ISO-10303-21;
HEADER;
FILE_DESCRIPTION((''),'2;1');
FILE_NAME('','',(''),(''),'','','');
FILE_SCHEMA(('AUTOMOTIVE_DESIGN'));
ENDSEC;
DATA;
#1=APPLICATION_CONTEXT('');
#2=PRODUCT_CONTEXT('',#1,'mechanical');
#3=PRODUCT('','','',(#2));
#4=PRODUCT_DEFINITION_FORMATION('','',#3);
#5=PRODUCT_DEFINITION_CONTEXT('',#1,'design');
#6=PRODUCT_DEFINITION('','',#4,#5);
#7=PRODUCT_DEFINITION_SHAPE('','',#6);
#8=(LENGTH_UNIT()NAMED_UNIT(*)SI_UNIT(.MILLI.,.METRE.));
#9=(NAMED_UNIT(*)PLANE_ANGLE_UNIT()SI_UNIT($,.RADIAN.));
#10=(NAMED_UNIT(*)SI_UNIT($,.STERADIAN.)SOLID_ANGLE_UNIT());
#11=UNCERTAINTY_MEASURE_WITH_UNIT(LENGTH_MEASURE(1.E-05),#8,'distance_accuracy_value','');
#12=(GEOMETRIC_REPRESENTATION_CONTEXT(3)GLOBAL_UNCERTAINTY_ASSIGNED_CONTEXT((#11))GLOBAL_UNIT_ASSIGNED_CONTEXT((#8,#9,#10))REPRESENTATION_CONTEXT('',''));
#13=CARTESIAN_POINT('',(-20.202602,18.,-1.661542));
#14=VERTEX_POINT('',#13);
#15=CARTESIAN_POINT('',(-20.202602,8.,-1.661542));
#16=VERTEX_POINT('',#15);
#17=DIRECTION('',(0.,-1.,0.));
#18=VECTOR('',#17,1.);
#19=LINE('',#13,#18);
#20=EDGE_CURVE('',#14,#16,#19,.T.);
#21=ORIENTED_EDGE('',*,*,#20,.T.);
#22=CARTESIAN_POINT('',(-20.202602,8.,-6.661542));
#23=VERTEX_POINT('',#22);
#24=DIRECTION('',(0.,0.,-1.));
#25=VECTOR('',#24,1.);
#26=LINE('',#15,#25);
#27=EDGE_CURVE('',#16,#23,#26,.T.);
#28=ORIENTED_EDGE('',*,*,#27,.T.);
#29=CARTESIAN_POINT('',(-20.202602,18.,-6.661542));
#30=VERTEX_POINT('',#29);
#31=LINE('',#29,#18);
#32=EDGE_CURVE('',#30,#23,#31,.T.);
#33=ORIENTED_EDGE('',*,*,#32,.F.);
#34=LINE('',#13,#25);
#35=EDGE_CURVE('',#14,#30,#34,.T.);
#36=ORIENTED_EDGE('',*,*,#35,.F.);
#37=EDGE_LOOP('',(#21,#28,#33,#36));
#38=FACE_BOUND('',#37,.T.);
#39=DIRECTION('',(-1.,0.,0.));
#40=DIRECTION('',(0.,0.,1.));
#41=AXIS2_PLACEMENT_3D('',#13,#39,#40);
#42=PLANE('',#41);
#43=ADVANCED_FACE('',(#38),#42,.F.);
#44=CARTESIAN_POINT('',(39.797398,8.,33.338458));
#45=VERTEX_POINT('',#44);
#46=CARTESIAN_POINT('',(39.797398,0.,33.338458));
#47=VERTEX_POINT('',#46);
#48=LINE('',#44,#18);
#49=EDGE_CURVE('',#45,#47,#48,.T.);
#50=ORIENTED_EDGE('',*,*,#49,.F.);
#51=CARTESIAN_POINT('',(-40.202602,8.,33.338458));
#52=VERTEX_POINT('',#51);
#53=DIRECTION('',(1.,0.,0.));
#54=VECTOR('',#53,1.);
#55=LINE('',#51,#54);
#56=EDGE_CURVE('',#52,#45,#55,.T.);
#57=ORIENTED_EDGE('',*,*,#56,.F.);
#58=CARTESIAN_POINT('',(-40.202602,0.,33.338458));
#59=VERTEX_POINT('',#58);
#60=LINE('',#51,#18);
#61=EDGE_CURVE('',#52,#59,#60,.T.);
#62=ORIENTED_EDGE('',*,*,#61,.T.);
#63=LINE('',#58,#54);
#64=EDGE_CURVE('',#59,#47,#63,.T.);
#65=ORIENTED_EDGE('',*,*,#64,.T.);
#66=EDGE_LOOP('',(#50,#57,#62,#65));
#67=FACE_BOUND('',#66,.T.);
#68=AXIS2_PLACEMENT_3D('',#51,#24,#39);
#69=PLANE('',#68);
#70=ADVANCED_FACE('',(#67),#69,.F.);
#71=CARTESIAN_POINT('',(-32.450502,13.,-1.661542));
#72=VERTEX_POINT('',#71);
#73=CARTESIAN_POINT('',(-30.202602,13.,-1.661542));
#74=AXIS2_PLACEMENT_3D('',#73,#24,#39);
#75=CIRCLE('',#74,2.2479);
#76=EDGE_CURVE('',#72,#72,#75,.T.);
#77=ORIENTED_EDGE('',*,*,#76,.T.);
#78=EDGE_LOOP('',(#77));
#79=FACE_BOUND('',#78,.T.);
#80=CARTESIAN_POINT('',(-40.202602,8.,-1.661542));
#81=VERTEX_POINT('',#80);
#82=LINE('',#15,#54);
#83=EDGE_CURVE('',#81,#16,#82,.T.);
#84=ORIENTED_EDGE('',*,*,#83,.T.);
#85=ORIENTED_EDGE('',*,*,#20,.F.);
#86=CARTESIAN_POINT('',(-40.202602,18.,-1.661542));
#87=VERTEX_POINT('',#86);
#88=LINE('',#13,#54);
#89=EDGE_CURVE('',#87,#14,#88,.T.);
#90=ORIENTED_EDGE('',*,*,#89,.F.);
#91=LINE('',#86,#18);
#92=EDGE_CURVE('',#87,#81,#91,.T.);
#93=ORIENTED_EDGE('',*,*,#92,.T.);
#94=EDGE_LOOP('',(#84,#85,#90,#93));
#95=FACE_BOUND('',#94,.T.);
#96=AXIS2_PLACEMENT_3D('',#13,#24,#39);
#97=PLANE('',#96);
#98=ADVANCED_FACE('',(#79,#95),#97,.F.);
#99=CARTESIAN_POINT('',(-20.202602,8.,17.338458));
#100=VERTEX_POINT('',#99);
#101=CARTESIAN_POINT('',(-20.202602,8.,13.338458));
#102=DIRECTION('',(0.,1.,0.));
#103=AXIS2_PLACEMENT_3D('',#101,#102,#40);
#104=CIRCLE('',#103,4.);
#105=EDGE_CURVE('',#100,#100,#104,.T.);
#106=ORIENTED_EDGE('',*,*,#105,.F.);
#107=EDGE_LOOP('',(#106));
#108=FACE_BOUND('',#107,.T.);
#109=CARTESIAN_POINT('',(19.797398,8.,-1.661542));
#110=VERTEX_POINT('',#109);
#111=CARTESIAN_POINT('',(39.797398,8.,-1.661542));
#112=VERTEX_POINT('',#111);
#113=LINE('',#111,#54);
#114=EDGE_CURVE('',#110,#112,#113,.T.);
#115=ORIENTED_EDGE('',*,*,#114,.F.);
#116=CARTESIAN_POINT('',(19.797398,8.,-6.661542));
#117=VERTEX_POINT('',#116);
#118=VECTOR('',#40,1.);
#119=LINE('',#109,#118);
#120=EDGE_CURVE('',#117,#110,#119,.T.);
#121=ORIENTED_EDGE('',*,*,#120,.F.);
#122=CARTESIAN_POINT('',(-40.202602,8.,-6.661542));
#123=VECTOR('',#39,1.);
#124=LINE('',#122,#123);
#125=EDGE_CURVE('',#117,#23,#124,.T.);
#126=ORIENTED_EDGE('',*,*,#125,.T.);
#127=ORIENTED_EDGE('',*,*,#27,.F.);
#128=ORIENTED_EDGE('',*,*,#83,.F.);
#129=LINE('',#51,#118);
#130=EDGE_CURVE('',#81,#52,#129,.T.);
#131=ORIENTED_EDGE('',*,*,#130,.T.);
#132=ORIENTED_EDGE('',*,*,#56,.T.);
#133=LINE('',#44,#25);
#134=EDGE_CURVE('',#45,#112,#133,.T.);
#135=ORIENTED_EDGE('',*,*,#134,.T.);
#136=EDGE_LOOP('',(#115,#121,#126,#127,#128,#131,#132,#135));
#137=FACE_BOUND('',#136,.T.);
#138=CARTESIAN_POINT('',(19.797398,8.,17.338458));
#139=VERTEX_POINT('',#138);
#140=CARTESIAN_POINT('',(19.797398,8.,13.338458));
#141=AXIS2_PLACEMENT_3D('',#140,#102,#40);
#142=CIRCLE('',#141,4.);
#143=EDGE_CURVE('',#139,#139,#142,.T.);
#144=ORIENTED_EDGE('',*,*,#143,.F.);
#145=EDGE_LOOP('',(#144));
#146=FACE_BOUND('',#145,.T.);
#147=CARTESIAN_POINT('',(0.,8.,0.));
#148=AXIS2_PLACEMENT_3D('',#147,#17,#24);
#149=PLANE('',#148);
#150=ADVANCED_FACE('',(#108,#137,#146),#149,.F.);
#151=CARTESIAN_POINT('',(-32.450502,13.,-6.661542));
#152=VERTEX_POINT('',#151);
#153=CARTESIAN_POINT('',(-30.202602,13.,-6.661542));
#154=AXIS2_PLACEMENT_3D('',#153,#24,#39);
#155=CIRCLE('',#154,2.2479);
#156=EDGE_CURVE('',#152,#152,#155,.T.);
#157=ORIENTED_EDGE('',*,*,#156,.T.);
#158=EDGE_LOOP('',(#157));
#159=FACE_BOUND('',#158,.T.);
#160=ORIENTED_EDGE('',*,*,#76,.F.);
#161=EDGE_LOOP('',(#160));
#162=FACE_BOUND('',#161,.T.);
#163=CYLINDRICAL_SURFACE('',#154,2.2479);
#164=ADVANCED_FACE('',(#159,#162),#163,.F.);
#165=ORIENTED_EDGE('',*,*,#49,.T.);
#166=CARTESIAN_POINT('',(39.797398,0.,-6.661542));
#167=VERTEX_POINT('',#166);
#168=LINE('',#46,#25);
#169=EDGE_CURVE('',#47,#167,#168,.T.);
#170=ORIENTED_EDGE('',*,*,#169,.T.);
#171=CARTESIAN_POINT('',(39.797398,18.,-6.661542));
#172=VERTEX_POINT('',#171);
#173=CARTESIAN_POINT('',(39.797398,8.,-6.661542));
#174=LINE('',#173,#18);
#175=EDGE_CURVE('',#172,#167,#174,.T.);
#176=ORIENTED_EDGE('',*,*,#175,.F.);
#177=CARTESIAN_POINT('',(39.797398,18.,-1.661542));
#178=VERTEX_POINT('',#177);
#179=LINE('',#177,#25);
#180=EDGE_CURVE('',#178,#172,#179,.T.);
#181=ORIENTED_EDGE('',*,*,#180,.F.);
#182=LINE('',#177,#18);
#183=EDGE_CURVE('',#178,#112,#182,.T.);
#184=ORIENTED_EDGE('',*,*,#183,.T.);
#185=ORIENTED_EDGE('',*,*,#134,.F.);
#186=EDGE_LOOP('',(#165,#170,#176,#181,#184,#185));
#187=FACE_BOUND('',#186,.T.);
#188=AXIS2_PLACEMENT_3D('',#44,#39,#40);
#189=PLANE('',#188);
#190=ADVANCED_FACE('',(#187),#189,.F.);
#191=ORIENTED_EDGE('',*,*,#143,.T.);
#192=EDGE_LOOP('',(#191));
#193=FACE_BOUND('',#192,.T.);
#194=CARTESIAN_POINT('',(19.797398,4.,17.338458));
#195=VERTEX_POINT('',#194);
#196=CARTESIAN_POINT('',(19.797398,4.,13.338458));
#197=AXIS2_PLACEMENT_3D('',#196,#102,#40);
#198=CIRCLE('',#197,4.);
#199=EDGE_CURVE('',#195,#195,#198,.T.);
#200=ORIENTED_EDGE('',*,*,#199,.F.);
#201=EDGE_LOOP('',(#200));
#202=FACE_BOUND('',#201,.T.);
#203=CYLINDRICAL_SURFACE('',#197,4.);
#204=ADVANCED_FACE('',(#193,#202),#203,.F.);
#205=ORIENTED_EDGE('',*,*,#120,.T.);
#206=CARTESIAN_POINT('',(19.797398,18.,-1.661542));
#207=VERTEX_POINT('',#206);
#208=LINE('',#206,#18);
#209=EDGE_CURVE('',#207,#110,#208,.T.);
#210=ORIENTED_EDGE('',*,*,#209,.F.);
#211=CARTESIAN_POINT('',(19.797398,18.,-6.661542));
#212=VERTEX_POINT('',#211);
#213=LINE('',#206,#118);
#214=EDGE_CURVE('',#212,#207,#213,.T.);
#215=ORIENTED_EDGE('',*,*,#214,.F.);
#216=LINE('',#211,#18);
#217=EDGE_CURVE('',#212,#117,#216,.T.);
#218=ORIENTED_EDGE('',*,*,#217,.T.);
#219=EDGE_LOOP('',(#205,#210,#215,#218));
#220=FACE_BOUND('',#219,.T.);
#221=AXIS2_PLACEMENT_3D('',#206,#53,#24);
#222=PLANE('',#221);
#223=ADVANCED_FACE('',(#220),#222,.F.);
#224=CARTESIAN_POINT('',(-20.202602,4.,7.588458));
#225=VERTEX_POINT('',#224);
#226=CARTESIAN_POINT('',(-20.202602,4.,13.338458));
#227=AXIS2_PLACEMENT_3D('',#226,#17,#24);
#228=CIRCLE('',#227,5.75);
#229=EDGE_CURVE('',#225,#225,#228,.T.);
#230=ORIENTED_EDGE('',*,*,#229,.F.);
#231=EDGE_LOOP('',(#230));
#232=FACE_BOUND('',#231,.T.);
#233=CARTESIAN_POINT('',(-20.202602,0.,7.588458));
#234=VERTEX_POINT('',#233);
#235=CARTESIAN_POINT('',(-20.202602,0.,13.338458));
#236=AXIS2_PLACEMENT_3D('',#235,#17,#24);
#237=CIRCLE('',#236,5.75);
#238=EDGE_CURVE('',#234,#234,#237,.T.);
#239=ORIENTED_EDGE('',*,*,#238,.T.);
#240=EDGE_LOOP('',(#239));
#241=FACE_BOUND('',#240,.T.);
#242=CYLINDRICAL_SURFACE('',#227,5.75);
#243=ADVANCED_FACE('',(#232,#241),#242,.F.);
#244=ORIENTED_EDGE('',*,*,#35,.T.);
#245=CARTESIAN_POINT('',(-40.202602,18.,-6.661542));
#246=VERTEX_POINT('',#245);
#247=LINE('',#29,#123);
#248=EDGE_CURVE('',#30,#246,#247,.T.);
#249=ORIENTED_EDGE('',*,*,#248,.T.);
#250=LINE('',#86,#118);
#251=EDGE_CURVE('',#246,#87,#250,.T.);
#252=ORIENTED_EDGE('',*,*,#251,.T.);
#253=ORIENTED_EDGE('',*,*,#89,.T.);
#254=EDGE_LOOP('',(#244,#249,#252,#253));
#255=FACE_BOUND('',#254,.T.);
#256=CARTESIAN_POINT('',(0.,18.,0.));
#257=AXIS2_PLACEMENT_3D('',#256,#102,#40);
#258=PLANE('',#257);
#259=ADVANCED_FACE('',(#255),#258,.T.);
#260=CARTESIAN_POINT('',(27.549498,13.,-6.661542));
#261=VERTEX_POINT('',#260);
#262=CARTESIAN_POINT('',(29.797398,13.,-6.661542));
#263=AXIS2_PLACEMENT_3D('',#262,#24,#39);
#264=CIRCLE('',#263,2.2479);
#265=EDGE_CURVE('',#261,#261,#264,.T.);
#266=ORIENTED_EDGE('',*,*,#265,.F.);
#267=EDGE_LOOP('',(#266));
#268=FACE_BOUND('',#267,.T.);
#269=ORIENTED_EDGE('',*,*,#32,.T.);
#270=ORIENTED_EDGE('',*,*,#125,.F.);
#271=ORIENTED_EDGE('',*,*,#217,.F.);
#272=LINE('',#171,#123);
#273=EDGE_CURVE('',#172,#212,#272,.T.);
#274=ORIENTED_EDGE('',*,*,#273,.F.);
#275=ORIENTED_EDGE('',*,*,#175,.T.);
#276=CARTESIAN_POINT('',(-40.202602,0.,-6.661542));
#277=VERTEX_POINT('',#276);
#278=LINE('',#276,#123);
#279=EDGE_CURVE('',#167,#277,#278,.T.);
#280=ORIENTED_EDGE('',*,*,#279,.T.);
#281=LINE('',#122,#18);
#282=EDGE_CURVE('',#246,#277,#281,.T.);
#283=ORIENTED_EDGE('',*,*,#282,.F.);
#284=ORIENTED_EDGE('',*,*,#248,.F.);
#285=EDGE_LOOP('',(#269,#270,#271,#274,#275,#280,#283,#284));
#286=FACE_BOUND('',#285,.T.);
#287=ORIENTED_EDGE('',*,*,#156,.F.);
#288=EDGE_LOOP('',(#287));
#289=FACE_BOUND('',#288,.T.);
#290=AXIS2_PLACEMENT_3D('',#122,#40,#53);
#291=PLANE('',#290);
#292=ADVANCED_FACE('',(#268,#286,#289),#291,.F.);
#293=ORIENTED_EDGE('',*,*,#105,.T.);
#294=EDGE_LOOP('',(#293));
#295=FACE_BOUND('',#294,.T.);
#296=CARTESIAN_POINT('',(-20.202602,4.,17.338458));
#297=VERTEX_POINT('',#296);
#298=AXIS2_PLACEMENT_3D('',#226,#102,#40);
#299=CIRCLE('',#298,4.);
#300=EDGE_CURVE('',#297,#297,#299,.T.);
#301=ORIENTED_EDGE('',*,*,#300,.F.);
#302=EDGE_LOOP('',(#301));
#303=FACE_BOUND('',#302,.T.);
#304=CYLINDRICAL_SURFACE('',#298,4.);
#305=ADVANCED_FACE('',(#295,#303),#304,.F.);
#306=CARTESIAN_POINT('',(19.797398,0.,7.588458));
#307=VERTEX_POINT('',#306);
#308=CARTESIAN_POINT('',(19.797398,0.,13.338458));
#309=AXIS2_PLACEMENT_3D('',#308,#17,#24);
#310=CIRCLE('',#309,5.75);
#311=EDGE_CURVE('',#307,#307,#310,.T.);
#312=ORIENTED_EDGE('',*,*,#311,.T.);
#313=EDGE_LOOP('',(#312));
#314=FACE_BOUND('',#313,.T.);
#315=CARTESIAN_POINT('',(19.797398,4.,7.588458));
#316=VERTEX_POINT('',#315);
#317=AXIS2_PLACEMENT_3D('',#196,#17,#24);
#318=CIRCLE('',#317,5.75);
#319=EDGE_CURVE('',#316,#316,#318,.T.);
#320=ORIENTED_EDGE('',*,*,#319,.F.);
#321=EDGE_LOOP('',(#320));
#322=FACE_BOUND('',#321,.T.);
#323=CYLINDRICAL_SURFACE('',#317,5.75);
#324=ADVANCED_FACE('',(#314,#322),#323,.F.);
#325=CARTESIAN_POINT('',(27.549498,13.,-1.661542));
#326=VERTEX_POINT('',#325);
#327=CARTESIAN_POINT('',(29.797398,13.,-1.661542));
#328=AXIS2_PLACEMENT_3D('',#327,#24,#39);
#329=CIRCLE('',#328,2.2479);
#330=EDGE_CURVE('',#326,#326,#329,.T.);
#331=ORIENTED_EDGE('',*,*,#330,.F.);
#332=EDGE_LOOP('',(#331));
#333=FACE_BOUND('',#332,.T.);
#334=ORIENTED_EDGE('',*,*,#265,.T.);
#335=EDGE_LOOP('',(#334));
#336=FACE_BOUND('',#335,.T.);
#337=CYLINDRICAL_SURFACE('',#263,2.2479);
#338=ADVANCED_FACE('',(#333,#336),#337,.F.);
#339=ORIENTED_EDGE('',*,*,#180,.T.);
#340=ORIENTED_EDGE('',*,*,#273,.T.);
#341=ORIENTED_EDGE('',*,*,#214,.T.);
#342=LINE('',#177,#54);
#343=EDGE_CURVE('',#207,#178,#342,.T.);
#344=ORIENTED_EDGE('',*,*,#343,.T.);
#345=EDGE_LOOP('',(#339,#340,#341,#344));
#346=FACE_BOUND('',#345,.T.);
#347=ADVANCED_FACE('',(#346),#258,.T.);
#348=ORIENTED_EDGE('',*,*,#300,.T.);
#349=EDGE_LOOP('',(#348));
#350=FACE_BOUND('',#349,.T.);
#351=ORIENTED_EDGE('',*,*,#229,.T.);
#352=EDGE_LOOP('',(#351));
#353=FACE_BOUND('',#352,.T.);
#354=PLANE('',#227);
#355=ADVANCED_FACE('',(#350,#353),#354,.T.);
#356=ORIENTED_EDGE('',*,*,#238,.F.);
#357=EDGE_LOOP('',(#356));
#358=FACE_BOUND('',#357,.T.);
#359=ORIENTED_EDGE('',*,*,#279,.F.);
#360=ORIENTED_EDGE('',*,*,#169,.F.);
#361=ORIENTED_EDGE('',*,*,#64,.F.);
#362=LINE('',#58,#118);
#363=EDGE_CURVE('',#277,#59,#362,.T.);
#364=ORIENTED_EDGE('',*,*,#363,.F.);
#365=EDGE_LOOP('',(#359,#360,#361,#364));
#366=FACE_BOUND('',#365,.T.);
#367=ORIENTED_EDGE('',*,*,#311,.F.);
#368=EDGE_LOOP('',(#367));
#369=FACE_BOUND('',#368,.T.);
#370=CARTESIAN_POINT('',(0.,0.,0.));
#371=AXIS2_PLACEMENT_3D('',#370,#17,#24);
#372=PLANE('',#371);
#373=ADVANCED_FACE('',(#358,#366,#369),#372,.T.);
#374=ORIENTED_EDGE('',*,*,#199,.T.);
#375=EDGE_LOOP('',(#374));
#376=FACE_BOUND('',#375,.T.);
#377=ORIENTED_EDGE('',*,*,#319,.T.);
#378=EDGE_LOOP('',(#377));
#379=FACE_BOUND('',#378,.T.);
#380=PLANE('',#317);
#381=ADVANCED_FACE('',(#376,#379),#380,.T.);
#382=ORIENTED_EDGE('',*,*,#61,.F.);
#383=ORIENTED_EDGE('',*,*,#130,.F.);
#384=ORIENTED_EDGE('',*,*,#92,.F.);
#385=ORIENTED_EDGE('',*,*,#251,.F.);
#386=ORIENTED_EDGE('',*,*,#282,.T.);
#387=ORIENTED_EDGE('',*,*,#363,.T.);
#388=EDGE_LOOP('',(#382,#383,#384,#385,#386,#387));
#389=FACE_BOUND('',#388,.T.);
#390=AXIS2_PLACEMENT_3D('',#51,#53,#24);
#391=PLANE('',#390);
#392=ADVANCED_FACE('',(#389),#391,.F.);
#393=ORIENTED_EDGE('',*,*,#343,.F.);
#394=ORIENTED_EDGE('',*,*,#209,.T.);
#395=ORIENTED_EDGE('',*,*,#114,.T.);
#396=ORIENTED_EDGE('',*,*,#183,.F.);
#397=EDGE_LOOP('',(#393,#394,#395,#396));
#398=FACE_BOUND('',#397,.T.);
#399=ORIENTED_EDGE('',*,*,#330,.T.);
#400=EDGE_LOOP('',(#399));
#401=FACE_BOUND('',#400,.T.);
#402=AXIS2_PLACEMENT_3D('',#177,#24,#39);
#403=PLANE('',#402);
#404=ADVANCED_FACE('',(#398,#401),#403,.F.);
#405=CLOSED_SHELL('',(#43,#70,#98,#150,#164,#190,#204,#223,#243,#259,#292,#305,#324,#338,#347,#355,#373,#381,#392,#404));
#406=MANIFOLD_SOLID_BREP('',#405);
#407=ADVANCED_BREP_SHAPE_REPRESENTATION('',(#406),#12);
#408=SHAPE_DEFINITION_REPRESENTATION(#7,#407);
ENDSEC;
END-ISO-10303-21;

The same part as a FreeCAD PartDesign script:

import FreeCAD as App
import Part
import Sketcher

V = App.Vector
Q = App.Units.Quantity

doc = App.newDocument("Part")
body = doc.addObject("PartDesign::Body", "Body")

# Sketch on XZ plane
sketch1 = doc.addObject("Sketcher::SketchObject", "Sketch")
body.addObject(sketch1)
sketch1.AttachmentSupport = (doc.XZ_Plane, [""])
sketch1.MapMode = "FlatFace"
sketch1.addGeometry([
    Part.LineSegment(V(-40, -7, 0), V(-40, 33, 0)),
    Part.LineSegment(V(-40, 33, 0), V(40, 33, 0)),
    Part.LineSegment(V(40, 33, 0), V(40, -7, 0)),
    Part.LineSegment(V(40, -7, 0), V(-40, -7, 0)),
], False)
sketch1.addConstraint([
    Sketcher.Constraint("Coincident", 0, 2, 1, 1),
    Sketcher.Constraint("Coincident", 1, 2, 2, 1),
    Sketcher.Constraint("Coincident", 2, 2, 3, 1),
    Sketcher.Constraint("Coincident", 3, 2, 0, 1),
    Sketcher.Constraint("Vertical", 0),
    Sketcher.Constraint("Horizontal", 1),
    Sketcher.Constraint("Vertical", 2),
    Sketcher.Constraint("Horizontal", 3),
    Sketcher.Constraint("DistanceX", 1, 1, 1, 2, Q("80 mm")),
    Sketcher.Constraint("DistanceY", 0, 1, 0, 2, Q("40 mm")),
    Sketcher.Constraint("DistanceY", -1, 1, 0, 2, Q("33.338458 mm")),
    Sketcher.Constraint("DistanceX", 0, 2, -1, 1, Q("40.202602 mm")),
])
pad1 = doc.addObject("PartDesign::Pad", "Pad")
body.addObject(pad1)
pad1.Profile = sketch1
pad1.Length = 8
pad1.Reversed = True

# Sketch on XZ plane
sketch2 = doc.addObject("Sketcher::SketchObject", "Sketch001")
body.addObject(sketch2)
sketch2.AttachmentSupport = (doc.XZ_Plane, [""])
sketch2.MapMode = "FlatFace"
sketch2.AttachmentOffset = App.Placement(V(0, 0, -8), App.Rotation())
sketch2.addGeometry([
    Part.Circle(V(19.8, 13.3, 0), V(0, 0, 1), 4),
    Part.Circle(V(-20.2, 13.3, 0), V(0, 0, 1), 4),
], False)
sketch2.addConstraint([
    Sketcher.Constraint("Equal", 0, 1),
    Sketcher.Constraint("Horizontal", 0, 3, 1, 3),
    Sketcher.Constraint("Diameter", 0, Q("8 mm")),
    Sketcher.Constraint("DistanceX", 1, 3, 0, 3, Q("40 mm")),
    Sketcher.Constraint("DistanceY", -1, 1, 0, 3, Q("13.338458 mm")),
    Sketcher.Constraint("DistanceX", -1, 1, 0, 3, Q("19.797398 mm")),
])
pocket1 = doc.addObject("PartDesign::Pocket", "Pocket")
body.addObject(pocket1)
pocket1.Profile = sketch2
pocket1.Length = 4
pocket1.Reversed = True

# Sketch on XZ plane
sketch3 = doc.addObject("Sketcher::SketchObject", "Sketch002")
body.addObject(sketch3)
sketch3.AttachmentSupport = (doc.XZ_Plane, [""])
sketch3.MapMode = "FlatFace"
sketch3.AttachmentOffset = App.Placement(V(0, 0, -8), App.Rotation())
sketch3.addGeometry([
    Part.LineSegment(V(20, -7, 0), V(20, -2, 0)),  # 0
    Part.LineSegment(V(20, -2, 0), V(40, -2, 0)),  # 1
    Part.LineSegment(V(40, -2, 0), V(40, -7, 0)),  # 2
    Part.LineSegment(V(40, -7, 0), V(20, -7, 0)),  # 3
    Part.LineSegment(V(-40, -7, 0), V(-40, -2, 0)),  # 4
    Part.LineSegment(V(-40, -2, 0), V(-20, -2, 0)),  # 5
    Part.LineSegment(V(-20, -2, 0), V(-20, -7, 0)),  # 6
    Part.LineSegment(V(-20, -7, 0), V(-40, -7, 0)),  # 7
], False)
sketch3.addConstraint([
    Sketcher.Constraint("Coincident", 0, 2, 1, 1),
    Sketcher.Constraint("Coincident", 1, 2, 2, 1),
    Sketcher.Constraint("Coincident", 2, 2, 3, 1),
    Sketcher.Constraint("Coincident", 3, 2, 0, 1),
    Sketcher.Constraint("Coincident", 4, 2, 5, 1),
    Sketcher.Constraint("Coincident", 5, 2, 6, 1),
    Sketcher.Constraint("Coincident", 6, 2, 7, 1),
    Sketcher.Constraint("Coincident", 7, 2, 4, 1),
    Sketcher.Constraint("Vertical", 0),
    Sketcher.Constraint("Horizontal", 1),
    Sketcher.Constraint("Vertical", 2),
    Sketcher.Constraint("Horizontal", 3),
    Sketcher.Constraint("Vertical", 4),
    Sketcher.Constraint("Horizontal", 5),
    Sketcher.Constraint("Vertical", 6),
    Sketcher.Constraint("Horizontal", 7),
    Sketcher.Constraint("Horizontal", 1, 2, 4, 2),
    Sketcher.Constraint("Horizontal", 3, 2, 6, 2),
    Sketcher.Constraint("Equal", 3, 5),
    Sketcher.Constraint("DistanceX", 1, 1, 1, 2, Q("20 mm")),
    Sketcher.Constraint("DistanceY", 0, 1, 0, 2, Q("5 mm")),
    Sketcher.Constraint("DistanceX", 4, 2, 0, 2, Q("60 mm")),
    Sketcher.Constraint("DistanceY", 0, 2, -1, 1, Q("1.661542 mm")),
    Sketcher.Constraint("DistanceX", -1, 1, 0, 2, Q("19.797398 mm")),
])
pad2 = doc.addObject("PartDesign::Pad", "Pad001")
body.addObject(pad2)
pad2.Profile = sketch3
pad2.Length = 10
pad2.Reversed = True

# Sketch on XZ plane
sketch4 = doc.addObject("Sketcher::SketchObject", "Sketch003")
body.addObject(sketch4)
sketch4.AttachmentSupport = (doc.XZ_Plane, [""])
sketch4.MapMode = "FlatFace"
sketch4.addGeometry([
    Part.Circle(V(-20, 13, 0), V(0, 0, 1), 6),
    Part.Circle(V(20, 13, 0), V(0, 0, 1), 6),
], False)
sketch4.addConstraint([
    Sketcher.Constraint("Equal", 0, 1),
    Sketcher.Constraint("Horizontal", 0, 3, 1, 3),
    Sketcher.Constraint("Diameter", 0, Q("11.5 mm")),
    Sketcher.Constraint("DistanceX", 0, 3, 1, 3, Q("40 mm")),
    Sketcher.Constraint("DistanceY", -1, 1, 0, 3, Q("13.338458 mm")),
    Sketcher.Constraint("DistanceX", 0, 3, -1, 1, Q("20.202602 mm")),
])
pocket2 = doc.addObject("PartDesign::Pocket", "Pocket001")
body.addObject(pocket2)
pocket2.Profile = sketch4
pocket2.Length = 4

# Sketch on XY plane
sketch5 = doc.addObject("Sketcher::SketchObject", "Sketch004")
body.addObject(sketch5)
sketch5.AttachmentSupport = (doc.XY_Plane, [""])
sketch5.MapMode = "FlatFace"
sketch5.AttachmentOffset = App.Placement(V(0, 0, -6.661542), App.Rotation())
sketch5.addGeometry([
    Part.Circle(V(29.8, 13, 0), V(0, 0, 1), 2.2),
    Part.Circle(V(-30.2, 13, 0), V(0, 0, 1), 2.2),
], False)
sketch5.addConstraint([
    Sketcher.Constraint("Equal", 0, 1),
    Sketcher.Constraint("Horizontal", 0, 3, 1, 3),
    Sketcher.Constraint("DistanceY", -1, 1, 0, 3, Q("13 mm")),
    Sketcher.Constraint("DistanceX", 1, 3, 0, 3, Q("60 mm")),
    Sketcher.Constraint("Diameter", 0, Q("4.4958 mm")),
    Sketcher.Constraint("DistanceX", -1, 1, 0, 3, Q("29.797398 mm")),
])
doc.recompute()
hole = doc.addObject("PartDesign::Hole", "Hole")
body.addObject(hole)
hole.Profile = sketch5
hole.ThreadType = "None"
hole.Diameter = 4.4958
hole.DepthType = "Dimension"
hole.Depth = 5
hole.DrillPoint = "Angled"
hole.DrillPointAngle = 118
hole.Reversed = True

doc.recompute()
